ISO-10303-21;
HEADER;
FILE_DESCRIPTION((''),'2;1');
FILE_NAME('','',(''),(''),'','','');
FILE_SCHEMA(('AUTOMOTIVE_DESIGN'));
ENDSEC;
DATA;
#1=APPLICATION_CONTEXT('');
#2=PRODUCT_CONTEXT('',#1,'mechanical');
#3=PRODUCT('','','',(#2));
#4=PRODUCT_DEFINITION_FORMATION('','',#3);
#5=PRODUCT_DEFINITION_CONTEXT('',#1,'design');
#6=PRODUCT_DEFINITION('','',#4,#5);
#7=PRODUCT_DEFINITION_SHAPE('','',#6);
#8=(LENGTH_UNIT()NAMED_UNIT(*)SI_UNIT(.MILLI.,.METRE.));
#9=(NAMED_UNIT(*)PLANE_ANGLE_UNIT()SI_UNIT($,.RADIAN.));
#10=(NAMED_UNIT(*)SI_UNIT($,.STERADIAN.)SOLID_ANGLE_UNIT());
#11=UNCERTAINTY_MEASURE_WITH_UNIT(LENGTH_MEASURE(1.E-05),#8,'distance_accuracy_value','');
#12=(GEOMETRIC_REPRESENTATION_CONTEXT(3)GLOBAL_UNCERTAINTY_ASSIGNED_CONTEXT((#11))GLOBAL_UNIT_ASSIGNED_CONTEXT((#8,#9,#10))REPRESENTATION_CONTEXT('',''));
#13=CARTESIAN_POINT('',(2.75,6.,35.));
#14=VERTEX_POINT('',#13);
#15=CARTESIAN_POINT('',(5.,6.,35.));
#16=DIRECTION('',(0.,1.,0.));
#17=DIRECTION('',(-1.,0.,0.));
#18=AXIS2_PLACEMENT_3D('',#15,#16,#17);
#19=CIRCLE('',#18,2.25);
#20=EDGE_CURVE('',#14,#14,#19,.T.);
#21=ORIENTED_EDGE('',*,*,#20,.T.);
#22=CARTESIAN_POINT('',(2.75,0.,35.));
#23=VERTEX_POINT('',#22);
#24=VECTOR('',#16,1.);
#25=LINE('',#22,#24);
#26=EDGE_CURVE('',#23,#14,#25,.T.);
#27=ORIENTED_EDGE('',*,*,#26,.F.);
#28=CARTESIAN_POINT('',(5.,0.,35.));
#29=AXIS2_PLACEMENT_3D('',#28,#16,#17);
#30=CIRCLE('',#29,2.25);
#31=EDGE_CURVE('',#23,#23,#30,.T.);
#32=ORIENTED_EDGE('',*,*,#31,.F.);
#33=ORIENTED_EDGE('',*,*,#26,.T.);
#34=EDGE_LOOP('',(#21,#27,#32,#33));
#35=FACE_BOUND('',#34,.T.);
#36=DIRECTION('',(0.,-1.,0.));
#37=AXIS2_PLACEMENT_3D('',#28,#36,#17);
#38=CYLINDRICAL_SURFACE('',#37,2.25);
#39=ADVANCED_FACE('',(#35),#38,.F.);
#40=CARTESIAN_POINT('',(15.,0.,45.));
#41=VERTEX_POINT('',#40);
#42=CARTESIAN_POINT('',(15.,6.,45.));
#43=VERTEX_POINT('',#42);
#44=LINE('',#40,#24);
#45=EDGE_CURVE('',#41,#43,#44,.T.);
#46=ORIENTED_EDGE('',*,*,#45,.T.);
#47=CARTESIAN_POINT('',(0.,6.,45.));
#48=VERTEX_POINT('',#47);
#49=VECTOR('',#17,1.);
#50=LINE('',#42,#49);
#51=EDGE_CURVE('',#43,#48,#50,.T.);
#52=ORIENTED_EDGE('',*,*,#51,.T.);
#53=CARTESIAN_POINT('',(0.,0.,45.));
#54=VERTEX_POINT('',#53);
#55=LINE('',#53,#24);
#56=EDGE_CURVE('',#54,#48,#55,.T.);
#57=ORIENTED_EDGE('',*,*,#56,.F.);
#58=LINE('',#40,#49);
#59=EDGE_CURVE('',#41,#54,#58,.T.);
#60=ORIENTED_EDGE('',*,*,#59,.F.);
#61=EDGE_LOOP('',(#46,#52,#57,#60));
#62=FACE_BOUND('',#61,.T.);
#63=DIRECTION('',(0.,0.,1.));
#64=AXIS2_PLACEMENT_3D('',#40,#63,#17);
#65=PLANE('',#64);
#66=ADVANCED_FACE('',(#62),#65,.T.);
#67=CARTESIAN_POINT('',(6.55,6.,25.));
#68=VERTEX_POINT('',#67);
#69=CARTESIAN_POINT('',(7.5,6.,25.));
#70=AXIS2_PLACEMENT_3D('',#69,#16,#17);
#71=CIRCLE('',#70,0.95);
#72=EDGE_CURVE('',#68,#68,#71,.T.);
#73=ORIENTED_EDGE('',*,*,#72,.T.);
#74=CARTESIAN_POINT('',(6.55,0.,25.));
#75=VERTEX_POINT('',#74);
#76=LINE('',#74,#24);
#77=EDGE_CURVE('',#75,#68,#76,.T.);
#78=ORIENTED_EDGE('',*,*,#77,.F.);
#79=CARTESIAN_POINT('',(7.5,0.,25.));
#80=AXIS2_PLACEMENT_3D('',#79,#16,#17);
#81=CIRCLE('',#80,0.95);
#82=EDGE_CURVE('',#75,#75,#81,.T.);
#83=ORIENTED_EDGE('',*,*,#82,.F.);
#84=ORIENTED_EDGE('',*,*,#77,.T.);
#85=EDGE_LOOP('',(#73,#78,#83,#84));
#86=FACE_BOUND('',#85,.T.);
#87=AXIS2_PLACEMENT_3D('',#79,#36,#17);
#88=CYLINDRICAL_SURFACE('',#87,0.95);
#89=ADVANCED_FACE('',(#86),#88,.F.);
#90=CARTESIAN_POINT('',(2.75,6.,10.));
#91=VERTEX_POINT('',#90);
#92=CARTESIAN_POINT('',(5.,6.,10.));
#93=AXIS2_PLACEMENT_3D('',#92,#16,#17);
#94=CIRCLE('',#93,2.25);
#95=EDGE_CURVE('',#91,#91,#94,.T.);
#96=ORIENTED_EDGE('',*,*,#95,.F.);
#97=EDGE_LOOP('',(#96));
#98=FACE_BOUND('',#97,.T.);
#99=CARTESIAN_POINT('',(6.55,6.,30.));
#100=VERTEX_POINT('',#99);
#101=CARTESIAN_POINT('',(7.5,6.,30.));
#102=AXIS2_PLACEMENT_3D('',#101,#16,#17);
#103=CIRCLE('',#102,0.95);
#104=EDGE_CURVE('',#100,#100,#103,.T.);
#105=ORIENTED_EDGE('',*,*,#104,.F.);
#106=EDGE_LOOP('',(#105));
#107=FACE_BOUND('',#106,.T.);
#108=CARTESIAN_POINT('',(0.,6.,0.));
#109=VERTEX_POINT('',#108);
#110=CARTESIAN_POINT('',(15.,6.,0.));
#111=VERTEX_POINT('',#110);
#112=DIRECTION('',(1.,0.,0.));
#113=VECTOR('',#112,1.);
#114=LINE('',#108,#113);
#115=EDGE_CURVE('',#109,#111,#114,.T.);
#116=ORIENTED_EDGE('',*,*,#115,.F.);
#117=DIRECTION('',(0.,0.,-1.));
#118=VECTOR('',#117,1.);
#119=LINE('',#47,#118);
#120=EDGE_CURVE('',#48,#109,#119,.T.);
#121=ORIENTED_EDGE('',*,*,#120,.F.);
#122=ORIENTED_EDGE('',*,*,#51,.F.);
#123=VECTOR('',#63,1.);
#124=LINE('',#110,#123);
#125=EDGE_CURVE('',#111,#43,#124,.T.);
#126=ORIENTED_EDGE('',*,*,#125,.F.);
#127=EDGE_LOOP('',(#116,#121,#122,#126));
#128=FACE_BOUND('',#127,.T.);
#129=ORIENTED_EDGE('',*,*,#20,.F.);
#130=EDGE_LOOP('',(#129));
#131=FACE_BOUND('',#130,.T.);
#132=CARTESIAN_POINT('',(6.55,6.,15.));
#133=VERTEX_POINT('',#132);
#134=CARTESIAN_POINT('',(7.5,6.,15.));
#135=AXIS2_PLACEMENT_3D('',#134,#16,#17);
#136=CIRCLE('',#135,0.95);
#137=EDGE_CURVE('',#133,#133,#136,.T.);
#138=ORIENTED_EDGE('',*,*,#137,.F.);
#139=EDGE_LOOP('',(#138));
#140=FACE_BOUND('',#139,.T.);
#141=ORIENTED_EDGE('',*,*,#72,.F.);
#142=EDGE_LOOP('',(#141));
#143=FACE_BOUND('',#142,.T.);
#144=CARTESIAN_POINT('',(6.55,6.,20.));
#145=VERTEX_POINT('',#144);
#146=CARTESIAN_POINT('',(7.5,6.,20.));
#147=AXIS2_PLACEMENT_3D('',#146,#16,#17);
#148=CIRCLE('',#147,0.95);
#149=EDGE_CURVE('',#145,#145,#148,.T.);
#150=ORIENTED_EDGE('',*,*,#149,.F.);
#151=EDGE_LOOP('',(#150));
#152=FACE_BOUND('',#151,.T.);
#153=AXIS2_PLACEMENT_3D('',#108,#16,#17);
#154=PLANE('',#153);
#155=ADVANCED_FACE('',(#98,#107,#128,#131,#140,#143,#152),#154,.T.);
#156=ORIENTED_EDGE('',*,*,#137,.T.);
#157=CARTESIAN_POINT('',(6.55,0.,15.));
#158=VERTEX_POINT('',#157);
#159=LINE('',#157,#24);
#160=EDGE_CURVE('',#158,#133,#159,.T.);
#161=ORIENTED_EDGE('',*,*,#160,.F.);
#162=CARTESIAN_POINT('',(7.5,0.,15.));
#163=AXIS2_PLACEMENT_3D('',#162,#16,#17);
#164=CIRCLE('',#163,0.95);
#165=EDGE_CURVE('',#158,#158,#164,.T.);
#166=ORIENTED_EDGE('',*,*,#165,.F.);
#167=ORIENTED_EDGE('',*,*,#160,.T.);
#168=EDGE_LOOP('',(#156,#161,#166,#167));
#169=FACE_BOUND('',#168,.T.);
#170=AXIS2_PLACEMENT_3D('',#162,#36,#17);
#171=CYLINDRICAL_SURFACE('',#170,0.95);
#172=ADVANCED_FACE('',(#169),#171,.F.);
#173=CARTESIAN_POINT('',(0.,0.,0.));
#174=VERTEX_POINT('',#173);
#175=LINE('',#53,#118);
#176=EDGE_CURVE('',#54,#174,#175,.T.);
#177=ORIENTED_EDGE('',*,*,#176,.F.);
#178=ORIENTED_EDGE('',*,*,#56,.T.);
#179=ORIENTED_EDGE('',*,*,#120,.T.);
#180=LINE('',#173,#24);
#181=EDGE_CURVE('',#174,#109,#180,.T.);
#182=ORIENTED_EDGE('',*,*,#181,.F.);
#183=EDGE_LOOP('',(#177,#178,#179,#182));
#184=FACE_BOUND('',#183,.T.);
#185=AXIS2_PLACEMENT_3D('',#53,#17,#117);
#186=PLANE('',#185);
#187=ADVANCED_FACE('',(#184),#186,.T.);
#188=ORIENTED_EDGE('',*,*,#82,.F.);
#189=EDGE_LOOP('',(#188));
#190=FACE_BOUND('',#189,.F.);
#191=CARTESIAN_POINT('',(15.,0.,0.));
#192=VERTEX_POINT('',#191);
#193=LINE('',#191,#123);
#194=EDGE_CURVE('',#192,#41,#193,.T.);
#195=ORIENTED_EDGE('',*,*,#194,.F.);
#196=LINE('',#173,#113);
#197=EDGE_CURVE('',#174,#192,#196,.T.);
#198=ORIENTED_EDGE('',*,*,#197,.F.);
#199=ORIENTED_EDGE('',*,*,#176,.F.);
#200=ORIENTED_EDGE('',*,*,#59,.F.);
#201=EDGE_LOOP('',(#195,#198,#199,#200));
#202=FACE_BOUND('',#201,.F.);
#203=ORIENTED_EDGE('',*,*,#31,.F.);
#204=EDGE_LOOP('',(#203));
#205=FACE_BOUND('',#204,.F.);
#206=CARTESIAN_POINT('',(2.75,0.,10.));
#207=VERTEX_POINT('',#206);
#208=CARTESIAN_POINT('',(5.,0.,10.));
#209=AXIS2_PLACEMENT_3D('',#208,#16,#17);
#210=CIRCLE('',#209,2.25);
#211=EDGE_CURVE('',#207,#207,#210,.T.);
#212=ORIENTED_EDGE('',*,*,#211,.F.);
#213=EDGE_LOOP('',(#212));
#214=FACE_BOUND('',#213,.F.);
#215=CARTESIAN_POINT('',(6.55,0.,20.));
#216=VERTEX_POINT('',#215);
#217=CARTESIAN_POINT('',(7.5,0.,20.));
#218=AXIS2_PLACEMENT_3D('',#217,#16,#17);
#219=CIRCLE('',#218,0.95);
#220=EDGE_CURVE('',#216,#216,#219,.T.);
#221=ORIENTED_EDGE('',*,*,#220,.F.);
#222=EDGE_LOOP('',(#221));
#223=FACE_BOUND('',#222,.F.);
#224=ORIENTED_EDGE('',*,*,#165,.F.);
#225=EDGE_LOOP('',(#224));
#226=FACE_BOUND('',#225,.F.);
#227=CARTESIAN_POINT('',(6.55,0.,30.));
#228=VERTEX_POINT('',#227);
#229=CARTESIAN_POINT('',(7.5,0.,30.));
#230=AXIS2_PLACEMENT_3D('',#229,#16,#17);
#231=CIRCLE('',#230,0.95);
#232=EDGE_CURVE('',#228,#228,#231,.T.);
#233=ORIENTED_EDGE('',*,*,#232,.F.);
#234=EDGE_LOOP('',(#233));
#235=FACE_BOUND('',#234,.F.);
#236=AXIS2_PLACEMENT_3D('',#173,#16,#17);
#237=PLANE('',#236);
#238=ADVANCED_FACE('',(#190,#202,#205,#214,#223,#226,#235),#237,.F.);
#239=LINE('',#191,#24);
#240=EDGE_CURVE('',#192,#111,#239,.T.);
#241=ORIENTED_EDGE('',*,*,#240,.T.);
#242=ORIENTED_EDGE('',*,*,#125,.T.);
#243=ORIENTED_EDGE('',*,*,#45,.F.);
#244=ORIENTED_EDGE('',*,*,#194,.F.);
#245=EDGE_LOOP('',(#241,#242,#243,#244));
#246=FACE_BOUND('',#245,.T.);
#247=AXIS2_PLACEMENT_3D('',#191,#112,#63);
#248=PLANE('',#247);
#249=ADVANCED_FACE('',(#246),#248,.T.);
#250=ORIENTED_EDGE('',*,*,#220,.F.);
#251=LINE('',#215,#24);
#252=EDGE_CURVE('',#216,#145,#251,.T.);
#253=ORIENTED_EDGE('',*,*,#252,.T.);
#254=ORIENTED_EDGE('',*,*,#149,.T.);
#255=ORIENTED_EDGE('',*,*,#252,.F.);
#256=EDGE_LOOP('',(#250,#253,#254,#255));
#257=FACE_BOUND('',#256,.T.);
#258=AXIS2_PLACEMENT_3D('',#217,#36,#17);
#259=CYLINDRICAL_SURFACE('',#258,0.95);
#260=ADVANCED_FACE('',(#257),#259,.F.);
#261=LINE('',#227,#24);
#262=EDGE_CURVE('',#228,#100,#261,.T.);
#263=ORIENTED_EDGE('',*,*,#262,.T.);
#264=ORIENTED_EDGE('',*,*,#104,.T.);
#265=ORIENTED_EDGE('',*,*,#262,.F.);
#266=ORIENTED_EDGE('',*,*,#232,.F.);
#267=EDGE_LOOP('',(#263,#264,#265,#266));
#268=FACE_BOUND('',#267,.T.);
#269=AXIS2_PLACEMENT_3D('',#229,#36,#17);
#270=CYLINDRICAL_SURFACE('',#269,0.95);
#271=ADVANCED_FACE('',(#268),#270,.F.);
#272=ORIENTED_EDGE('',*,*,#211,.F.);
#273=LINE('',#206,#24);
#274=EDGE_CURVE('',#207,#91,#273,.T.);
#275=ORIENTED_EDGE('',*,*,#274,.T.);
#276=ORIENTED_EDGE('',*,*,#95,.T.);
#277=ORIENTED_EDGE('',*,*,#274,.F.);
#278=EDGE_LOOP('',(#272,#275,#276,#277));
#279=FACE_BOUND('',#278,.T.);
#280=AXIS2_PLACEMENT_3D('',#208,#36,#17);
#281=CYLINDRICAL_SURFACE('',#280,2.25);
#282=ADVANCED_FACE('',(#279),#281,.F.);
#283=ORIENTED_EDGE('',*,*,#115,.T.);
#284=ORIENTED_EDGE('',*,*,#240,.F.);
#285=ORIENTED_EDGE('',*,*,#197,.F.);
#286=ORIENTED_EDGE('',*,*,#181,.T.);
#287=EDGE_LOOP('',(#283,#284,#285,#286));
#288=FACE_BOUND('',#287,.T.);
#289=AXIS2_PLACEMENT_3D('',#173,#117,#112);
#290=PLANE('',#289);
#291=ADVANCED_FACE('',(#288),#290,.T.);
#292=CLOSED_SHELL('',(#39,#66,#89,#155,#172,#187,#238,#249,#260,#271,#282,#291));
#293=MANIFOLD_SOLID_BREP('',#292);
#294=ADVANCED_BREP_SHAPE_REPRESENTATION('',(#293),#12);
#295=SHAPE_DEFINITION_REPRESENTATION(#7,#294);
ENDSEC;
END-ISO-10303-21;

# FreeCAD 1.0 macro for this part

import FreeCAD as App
import Part
import Sketcher
from FreeCAD import Vector

doc = App.newDocument("Part")
body = doc.addObject("PartDesign::Body", "Body")

# Sketch on XZ plane
sketch1 = doc.addObject("Sketcher::SketchObject", "Sketch")
body.addObject(sketch1)
sketch1.AttachmentSupport = (doc.XZ_Plane, [""])
sketch1.MapMode = "FlatFace"
sketch1.addGeometry([
    Part.LineSegment(Vector(15, 0, 0), Vector(0, 0, 0)),  # 0
    Part.LineSegment(Vector(0, 0, 0), Vector(0, 45, 0)),  # 1
    Part.LineSegment(Vector(0, 45, 0), Vector(15, 45, 0)),  # 2
    Part.LineSegment(Vector(15, 45, 0), Vector(15, 0, 0)),  # 3
    Part.Circle(Vector(5, 10, 0), Vector(0, 0, 1), 2.2),  # 4
    Part.Circle(Vector(7.5, 15, 0), Vector(0, 0, 1), 0.9),  # 5
    Part.Circle(Vector(7.5, 20, 0), Vector(0, 0, 1), 0.9),  # 6
    Part.Circle(Vector(7.5, 25, 0), Vector(0, 0, 1), 0.9),  # 7
    Part.Circle(Vector(7.5, 30, 0), Vector(0, 0, 1), 0.9),  # 8
    Part.Circle(Vector(5, 35, 0), Vector(0, 0, 1), 2.2),  # 9
], False)
sketch1.addConstraint([
    Sketcher.Constraint("Coincident", 0, 2, 1, 1),
    Sketcher.Constraint("Coincident", 1, 2, 2, 1),
    Sketcher.Constraint("Coincident", 2, 2, 3, 1),
    Sketcher.Constraint("Coincident", 3, 2, 0, 1),
    Sketcher.Constraint("Horizontal", 0),
    Sketcher.Constraint("Vertical", 1),
    Sketcher.Constraint("Horizontal", 2),
    Sketcher.Constraint("Vertical", 3),
    Sketcher.Constraint("Coincident", 0, 2, -1, 1),
    Sketcher.Constraint("Equal", 5, 6),
    Sketcher.Constraint("Equal", 6, 7),
    Sketcher.Constraint("Equal", 7, 8),
    Sketcher.Constraint("Equal", 4, 9),
    Sketcher.Constraint("Vertical", 5, 3, 6, 3),
    Sketcher.Constraint("Vertical", 6, 3, 7, 3),
    Sketcher.Constraint("Vertical", 7, 3, 8, 3),
    Sketcher.Constraint("Vertical", 4, 3, 9, 3),
    Sketcher.Constraint("Diameter", 4, 4.5),
    Sketcher.Constraint("Diameter", 5, 1.9),
    Sketcher.Constraint("DistanceX", 0, 2, 0, 1, 15.0),
    Sketcher.Constraint("DistanceY", 1, 1, 1, 2, 45.0),
    Sketcher.Constraint("DistanceX", -1, 1, 4, 3, 5.0),
    Sketcher.Constraint("DistanceY", -1, 1, 4, 3, 10.0),
    Sketcher.Constraint("DistanceY", -1, 1, 5, 3, 15.0),
    Sketcher.Constraint("DistanceY", -1, 1, 7, 3, 25.0),
    Sketcher.Constraint("DistanceY", 5, 3, 6, 3, 5.0),
    Sketcher.Constraint("DistanceY", 7, 3, 8, 3, 5.0),
    Sketcher.Constraint("DistanceY", 8, 3, 9, 3, 5.0),
    Sketcher.Constraint("DistanceX", -1, 1, 5, 3, 7.5),
])
pad1 = doc.addObject("PartDesign::Pad", "Pad")
body.addObject(pad1)
pad1.Profile = sketch1
pad1.Length = 6
pad1.Reversed = True

doc.recompute()
